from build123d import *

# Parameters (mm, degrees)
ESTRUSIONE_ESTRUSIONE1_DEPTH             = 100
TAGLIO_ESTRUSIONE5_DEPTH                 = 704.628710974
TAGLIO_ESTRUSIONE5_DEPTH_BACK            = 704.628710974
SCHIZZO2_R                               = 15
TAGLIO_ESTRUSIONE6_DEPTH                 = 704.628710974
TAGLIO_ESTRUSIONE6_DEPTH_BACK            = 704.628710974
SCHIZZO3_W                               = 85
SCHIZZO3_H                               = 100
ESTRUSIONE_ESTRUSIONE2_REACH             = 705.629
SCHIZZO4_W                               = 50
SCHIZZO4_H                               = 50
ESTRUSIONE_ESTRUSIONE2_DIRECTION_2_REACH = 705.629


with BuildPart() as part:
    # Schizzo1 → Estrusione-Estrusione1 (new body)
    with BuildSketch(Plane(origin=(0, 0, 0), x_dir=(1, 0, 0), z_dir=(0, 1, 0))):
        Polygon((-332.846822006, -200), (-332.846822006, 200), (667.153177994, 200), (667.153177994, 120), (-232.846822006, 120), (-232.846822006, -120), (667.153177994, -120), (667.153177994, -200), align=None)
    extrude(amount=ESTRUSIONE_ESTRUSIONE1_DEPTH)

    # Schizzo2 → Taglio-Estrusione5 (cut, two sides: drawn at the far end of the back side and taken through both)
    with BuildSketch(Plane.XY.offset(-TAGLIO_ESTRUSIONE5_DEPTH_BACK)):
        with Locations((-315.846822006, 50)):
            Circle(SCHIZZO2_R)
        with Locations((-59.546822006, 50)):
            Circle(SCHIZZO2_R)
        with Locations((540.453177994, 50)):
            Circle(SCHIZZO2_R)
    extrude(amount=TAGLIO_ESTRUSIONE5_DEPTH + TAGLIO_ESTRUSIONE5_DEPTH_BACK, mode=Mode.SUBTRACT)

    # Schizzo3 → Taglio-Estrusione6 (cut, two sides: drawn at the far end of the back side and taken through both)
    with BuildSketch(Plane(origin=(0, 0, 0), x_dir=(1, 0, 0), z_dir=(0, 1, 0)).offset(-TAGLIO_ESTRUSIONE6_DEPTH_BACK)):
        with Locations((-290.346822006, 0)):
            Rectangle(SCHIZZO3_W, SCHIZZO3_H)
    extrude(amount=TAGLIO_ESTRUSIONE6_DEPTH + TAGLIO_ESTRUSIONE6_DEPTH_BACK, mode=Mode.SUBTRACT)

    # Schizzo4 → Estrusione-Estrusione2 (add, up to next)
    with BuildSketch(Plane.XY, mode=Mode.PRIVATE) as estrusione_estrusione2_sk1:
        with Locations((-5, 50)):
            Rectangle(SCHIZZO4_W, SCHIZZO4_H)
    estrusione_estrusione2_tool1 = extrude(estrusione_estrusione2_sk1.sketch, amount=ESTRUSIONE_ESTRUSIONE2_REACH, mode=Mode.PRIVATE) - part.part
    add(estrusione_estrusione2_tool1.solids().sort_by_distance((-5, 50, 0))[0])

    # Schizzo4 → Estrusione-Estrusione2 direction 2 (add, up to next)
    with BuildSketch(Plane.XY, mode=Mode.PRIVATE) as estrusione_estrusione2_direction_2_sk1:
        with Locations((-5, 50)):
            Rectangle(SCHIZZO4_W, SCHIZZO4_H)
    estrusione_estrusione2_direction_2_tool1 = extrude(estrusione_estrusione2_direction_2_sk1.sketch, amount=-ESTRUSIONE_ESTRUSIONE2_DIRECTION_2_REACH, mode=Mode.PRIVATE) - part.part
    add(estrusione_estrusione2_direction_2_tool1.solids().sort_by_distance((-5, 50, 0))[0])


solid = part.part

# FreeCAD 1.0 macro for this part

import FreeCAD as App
import Part
import Sketcher
Q = App.Units.Quantity

doc = App.newDocument("Part")
body = doc.addObject("PartDesign::Body", "Body")

sketch1 = body.newObject("Sketcher::SketchObject", "Sketch")
sketch1.AttachmentSupport = (doc.getObject("XZ_Plane"), [""])
sketch1.MapMode = "FlatFace"
sketch1.addGeometry(Part.LineSegment(App.Vector(-332.846822, -200, 0), App.Vector(-332.846822, 200, 0)), False)
sketch1.addGeometry(Part.LineSegment(App.Vector(-332.846822, 200, 0), App.Vector(667.153178, 200, 0)), False)
sketch1.addGeometry(Part.LineSegment(App.Vector(667.153178, 200, 0), App.Vector(667.153178, 120, 0)), False)
sketch1.addGeometry(Part.LineSegment(App.Vector(667.153178, 120, 0), App.Vector(-232.846822, 120, 0)), False)
sketch1.addGeometry(Part.LineSegment(App.Vector(-232.846822, 120, 0), App.Vector(-232.846822, -120, 0)), False)
sketch1.addGeometry(Part.LineSegment(App.Vector(-232.846822, -120, 0), App.Vector(667.153178, -120, 0)), False)
sketch1.addGeometry(Part.LineSegment(App.Vector(667.153178, -120, 0), App.Vector(667.153178, -200, 0)), False)
sketch1.addGeometry(Part.LineSegment(App.Vector(667.153178, -200, 0), App.Vector(-332.846822, -200, 0)), False)
sketch1.addConstraint(Sketcher.Constraint("Coincident", 0, 2, 1, 1))
sketch1.addConstraint(Sketcher.Constraint("Coincident", 1, 2, 2, 1))
sketch1.addConstraint(Sketcher.Constraint("Coincident", 2, 2, 3, 1))
sketch1.addConstraint(Sketcher.Constraint("Coincident", 3, 2, 4, 1))
sketch1.addConstraint(Sketcher.Constraint("Coincident", 4, 2, 5, 1))
sketch1.addConstraint(Sketcher.Constraint("Coincident", 5, 2, 6, 1))
sketch1.addConstraint(Sketcher.Constraint("Coincident", 6, 2, 7, 1))
sketch1.addConstraint(Sketcher.Constraint("Coincident", 7, 2, 0, 1))
sketch1.addConstraint(Sketcher.Constraint("Vertical", 0))
sketch1.addConstraint(Sketcher.Constraint("Horizontal", 1))
sketch1.addConstraint(Sketcher.Constraint("Vertical", 2))
sketch1.addConstraint(Sketcher.Constraint("Horizontal", 3))
sketch1.addConstraint(Sketcher.Constraint("Vertical", 4))
sketch1.addConstraint(Sketcher.Constraint("Horizontal", 5))
sketch1.addConstraint(Sketcher.Constraint("Vertical", 6))
sketch1.addConstraint(Sketcher.Constraint("Horizontal", 7))
sketch1.addConstraint(Sketcher.Constraint("Symmetric", 2, 2, 5, 2, -1))
sketch1.addConstraint(Sketcher.Constraint("Equal", 2, 6))
sketch1.addConstraint(Sketcher.Constraint("DistanceX", 1, 1, 1, 2, Q("1000 mm")))
sketch1.addConstraint(Sketcher.Constraint("DistanceX", 3, 2, 3, 1, Q("900 mm")))
sketch1.addConstraint(Sketcher.Constraint("DistanceY", 0, 1, 0, 2, Q("400 mm")))
sketch1.addConstraint(Sketcher.Constraint("DistanceY", 2, 2, 2, 1, Q("80 mm")))
sketch1.addConstraint(Sketcher.Constraint("DistanceX", 0, 2, -1, 1, Q("332.846822 mm")))
pad1 = body.newObject("PartDesign::Pad", "Pad")
pad1.Profile = sketch1
pad1.Length = 100
pad1.Reversed = True

sketch2 = body.newObject("Sketcher::SketchObject", "Sketch001")
sketch2.AttachmentSupport = (doc.getObject("XY_Plane"), [""])
sketch2.MapMode = "FlatFace"
sketch2.addGeometry(Part.Circle(App.Vector(-315.846822, 50, 0), App.Vector(0, 0, 1), 15), False)
sketch2.addGeometry(Part.Circle(App.Vector(-59.546822, 50, 0), App.Vector(0, 0, 1), 15), False)
sketch2.addGeometry(Part.Circle(App.Vector(540.453178, 50, 0), App.Vector(0, 0, 1), 15), False)
sketch2.addConstraint(Sketcher.Constraint("Equal", 0, 1))
sketch2.addConstraint(Sketcher.Constraint("Equal", 1, 2))
sketch2.addConstraint(Sketcher.Constraint("Horizontal", 0, 3, 1, 3))
sketch2.addConstraint(Sketcher.Constraint("Horizontal", 1, 3, 2, 3))
sketch2.addConstraint(Sketcher.Constraint("Diameter", 0, Q("30 mm")))
sketch2.addConstraint(Sketcher.Constraint("DistanceY", -1, 1, 0, 3, Q("50 mm")))
sketch2.addConstraint(Sketcher.Constraint("DistanceX", 1, 3, 2, 3, Q("600 mm")))
sketch2.addConstraint(Sketcher.Constraint("DistanceX", 0, 3, 1, 3, Q("256.3 mm")))
sketch2.addConstraint(Sketcher.Constraint("DistanceX", 0, 3, -1, 1, Q("315.846822 mm")))
pocket1 = body.newObject("PartDesign::Pocket", "Pocket")
pocket1.Profile = sketch2
pocket1.Type = "ThroughAll"
pocket1.Midplane = True

sketch3 = body.newObject("Sketcher::SketchObject", "Sketch002")
sketch3.AttachmentSupport = (doc.getObject("XZ_Plane"), [""])
sketch3.MapMode = "FlatFace"
sketch3.addGeometry(Part.LineSegment(App.Vector(-332.846822, -50, 0), App.Vector(-332.846822, 50, 0)), False)
sketch3.addGeometry(Part.LineSegment(App.Vector(-332.846822, 50, 0), App.Vector(-247.846822, 50, 0)), False)
sketch3.addGeometry(Part.LineSegment(App.Vector(-247.846822, 50, 0), App.Vector(-247.846822, -50, 0)), False)
sketch3.addGeometry(Part.LineSegment(App.Vector(-247.846822, -50, 0), App.Vector(-332.846822, -50, 0)), False)
sketch3.addConstraint(Sketcher.Constraint("Coincident", 0, 2, 1, 1))
sketch3.addConstraint(Sketcher.Constraint("Coincident", 1, 2, 2, 1))
sketch3.addConstraint(Sketcher.Constraint("Coincident", 2, 2, 3, 1))
sketch3.addConstraint(Sketcher.Constraint("Coincident", 3, 2, 0, 1))
sketch3.addConstraint(Sketcher.Constraint("Vertical", 0))
sketch3.addConstraint(Sketcher.Constraint("Horizontal", 1))
sketch3.addConstraint(Sketcher.Constraint("Vertical", 2))
sketch3.addConstraint(Sketcher.Constraint("Horizontal", 3))
sketch3.addConstraint(Sketcher.Constraint("DistanceX", 1, 1, 1, 2, Q("85 mm")))
sketch3.addConstraint(Sketcher.Constraint("DistanceY", 0, 1, 0, 2, Q("100 mm")))
sketch3.addConstraint(Sketcher.Constraint("DistanceY", -1, 1, 0, 2, Q("50 mm")))
sketch3.addConstraint(Sketcher.Constraint("DistanceX", 0, 2, -1, 1, Q("332.846822 mm")))
pocket2 = body.newObject("PartDesign::Pocket", "Pocket001")
pocket2.Profile = sketch3
pocket2.Type = "ThroughAll"
pocket2.Midplane = True

sketch4 = body.newObject("Sketcher::SketchObject", "Sketch003")
sketch4.AttachmentSupport = (doc.getObject("XY_Plane"), [""])
sketch4.MapMode = "FlatFace"
sketch4.addGeometry(Part.LineSegment(App.Vector(-30, 75, 0), App.Vector(-30, 25, 0)), False)
sketch4.addGeometry(Part.LineSegment(App.Vector(-30, 25, 0), App.Vector(20, 25, 0)), False)
sketch4.addGeometry(Part.LineSegment(App.Vector(20, 25, 0), App.Vector(20, 75, 0)), False)
sketch4.addGeometry(Part.LineSegment(App.Vector(20, 75, 0), App.Vector(-30, 75, 0)), False)
sketch4.addConstraint(Sketcher.Constraint("Coincident", 0, 2, 1, 1))
sketch4.addConstraint(Sketcher.Constraint("Coincident", 1, 2, 2, 1))
sketch4.addConstraint(Sketcher.Constraint("Coincident", 2, 2, 3, 1))
sketch4.addConstraint(Sketcher.Constraint("Coincident", 3, 2, 0, 1))
sketch4.addConstraint(Sketcher.Constraint("Vertical", 0))
sketch4.addConstraint(Sketcher.Constraint("Horizontal", 1))
sketch4.addConstraint(Sketcher.Constraint("Vertical", 2))
sketch4.addConstraint(Sketcher.Constraint("Horizontal", 3))
sketch4.addConstraint(Sketcher.Constraint("Equal", 3, 0))
sketch4.addConstraint(Sketcher.Constraint("DistanceX", 1, 1, 1, 2, Q("50 mm")))
sketch4.addConstraint(Sketcher.Constraint("DistanceX", 0, 2, -1, 1, Q("30 mm")))
sketch4.addConstraint(Sketcher.Constraint("DistanceY", -1, 1, 0, 2, Q("25 mm")))
pad2 = body.newObject("PartDesign::Pad", "Pad001")
pad2.Profile = sketch4
pad2.Type = "UpToFirst"

sketch5 = body.newObject("Sketcher::SketchObject", "Sketch004")
sketch5.AttachmentSupport = (doc.getObject("XY_Plane"), [""])
sketch5.MapMode = "FlatFace"
sketch5.addGeometry(Part.LineSegment(App.Vector(-30, 75, 0), App.Vector(-30, 25, 0)), False)
sketch5.addGeometry(Part.LineSegment(App.Vector(-30, 25, 0), App.Vector(20, 25, 0)), False)
sketch5.addGeometry(Part.LineSegment(App.Vector(20, 25, 0), App.Vector(20, 75, 0)), False)
sketch5.addGeometry(Part.LineSegment(App.Vector(20, 75, 0), App.Vector(-30, 75, 0)), False)
sketch5.addConstraint(Sketcher.Constraint("Coincident", 0, 2, 1, 1))
sketch5.addConstraint(Sketcher.Constraint("Coincident", 1, 2, 2, 1))
sketch5.addConstraint(Sketcher.Constraint("Coincident", 2, 2, 3, 1))
sketch5.addConstraint(Sketcher.Constraint("Coincident", 3, 2, 0, 1))
sketch5.addConstraint(Sketcher.Constraint("Vertical", 0))
sketch5.addConstraint(Sketcher.Constraint("Horizontal", 1))
sketch5.addConstraint(Sketcher.Constraint("Vertical", 2))
sketch5.addConstraint(Sketcher.Constraint("Horizontal", 3))
sketch5.addConstraint(Sketcher.Constraint("Equal", 3, 0))
sketch5.addConstraint(Sketcher.Constraint("DistanceX", 1, 1, 1, 2, Q("50 mm")))
sketch5.addConstraint(Sketcher.Constraint("DistanceX", 0, 2, -1, 1, Q("30 mm")))
sketch5.addConstraint(Sketcher.Constraint("DistanceY", -1, 1, 0, 2, Q("25 mm")))
pad3 = body.newObject("PartDesign::Pad", "Pad002")
pad3.Profile = sketch5
pad3.Type = "UpToFirst"
pad3.Reversed = True

doc.recompute()
